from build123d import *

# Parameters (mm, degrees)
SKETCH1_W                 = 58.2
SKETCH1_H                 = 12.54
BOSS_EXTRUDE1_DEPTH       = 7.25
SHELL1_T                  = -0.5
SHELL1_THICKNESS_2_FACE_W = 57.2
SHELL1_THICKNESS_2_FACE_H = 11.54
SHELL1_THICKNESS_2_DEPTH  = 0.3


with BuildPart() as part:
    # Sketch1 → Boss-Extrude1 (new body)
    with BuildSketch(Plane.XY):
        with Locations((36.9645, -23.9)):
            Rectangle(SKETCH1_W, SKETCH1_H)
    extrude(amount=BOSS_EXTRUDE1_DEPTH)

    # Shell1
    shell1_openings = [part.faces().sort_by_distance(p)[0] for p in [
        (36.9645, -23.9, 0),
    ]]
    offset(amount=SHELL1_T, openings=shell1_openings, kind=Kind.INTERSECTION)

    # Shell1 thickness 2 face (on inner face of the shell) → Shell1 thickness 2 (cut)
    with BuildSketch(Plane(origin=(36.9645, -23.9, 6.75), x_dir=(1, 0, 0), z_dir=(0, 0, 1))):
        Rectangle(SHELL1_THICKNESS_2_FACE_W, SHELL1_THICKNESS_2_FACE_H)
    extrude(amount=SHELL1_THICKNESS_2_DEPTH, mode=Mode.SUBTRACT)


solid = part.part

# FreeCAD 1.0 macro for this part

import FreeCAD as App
import Part
import Sketcher
Q = App.Units.Quantity


def faces_at(feature, points):
    """Names of the faces that lie closest to the given points."""
    faces = feature.Shape.Faces
    near = lambda p: min(range(len(faces)), key=lambda i: faces[i].distToShape(Part.Vertex(*p))[0])
    return sorted({f"Face{near(p) + 1}" for p in points})

doc = App.newDocument("Part")
params = doc.addObject("Spreadsheet::Sheet", "Params")
for row, (alias, value) in enumerate([
    ("sketch1_width", "58.2 mm"),
    ("sketch1_height", "12.54 mm"),
    ("pad1_length", "7.25 mm"),
    ("thickness_wall", "0.5 mm"),
    ("sketch2_width", "57.2 mm"),
    ("sketch2_height", "11.54 mm"),
    ("pocket1_length", "0.3 mm"),
], start=1):
    params.set(f"A{row}", alias)
    params.set(f"B{row}", "=" + value)
    params.setAlias(f"B{row}", alias)

body = doc.addObject("PartDesign::Body", "Body")

sketch1 = body.newObject("Sketcher::SketchObject", "Sketch")
sketch1.AttachmentSupport = (doc.getObject("XY_Plane"), [""])
sketch1.MapMode = "FlatFace"
sketch1.addGeometry(Part.LineSegment(App.Vector(8, -18, 0), App.Vector(8, -30, 0)), False)
sketch1.addGeometry(Part.LineSegment(App.Vector(8, -30, 0), App.Vector(66, -30, 0)), False)
sketch1.addGeometry(Part.LineSegment(App.Vector(66, -30, 0), App.Vector(66, -18, 0)), False)
sketch1.addGeometry(Part.LineSegment(App.Vector(66, -18, 0), App.Vector(8, -18, 0)), False)
sketch1.addConstraint(Sketcher.Constraint("Coincident", 0, 2, 1, 1))
sketch1.addConstraint(Sketcher.Constraint("Coincident", 1, 2, 2, 1))
sketch1.addConstraint(Sketcher.Constraint("Coincident", 2, 2, 3, 1))
sketch1.addConstraint(Sketcher.Constraint("Coincident", 3, 2, 0, 1))
sketch1.addConstraint(Sketcher.Constraint("Vertical", 0))
sketch1.addConstraint(Sketcher.Constraint("Horizontal", 1))
sketch1.addConstraint(Sketcher.Constraint("Vertical", 2))
sketch1.addConstraint(Sketcher.Constraint("Horizontal", 3))
sketch1.addConstraint(Sketcher.Constraint("DistanceX", 1, 1, 1, 2, Q("58.2 mm")))
sketch1.addConstraint(Sketcher.Constraint("DistanceY", 0, 2, 0, 1, Q("12.54 mm")))
sketch1.addConstraint(Sketcher.Constraint("DistanceY", 0, 2, -1, 1, Q("30.17 mm")))
sketch1.addConstraint(Sketcher.Constraint("DistanceX", -1, 1, 0, 2, Q("7.8645 mm")))
sketch1.setExpression("Constraints[8]", "Params.sketch1_width")
sketch1.setExpression("Constraints[9]", "Params.sketch1_height")
pad1 = body.newObject("PartDesign::Pad", "Pad")
pad1.Profile = sketch1
pad1.setExpression("Length", "Params.pad1_length")
doc.recompute()

thickness = body.newObject("PartDesign::Thickness", "Thickness")
thickness.Base = (pad1, faces_at(pad1, [(36.965, -23.9, 0)]))
thickness.setExpression("Value", "Params.thickness_wall")
thickness.Reversed = True
thickness.Join = "Intersection"

sketch2 = body.newObject("Sketcher::SketchObject", "Sketch001")
sketch2.AttachmentSupport = (doc.getObject("XY_Plane"), [""])
sketch2.MapMode = "FlatFace"
sketch2.AttachmentOffset = App.Placement(App.Vector(0, 0, 6.75), App.Rotation())
sketch2.addGeometry(Part.LineSegment(App.Vector(8, -18, 0), App.Vector(8, -30, 0)), False)
sketch2.addGeometry(Part.LineSegment(App.Vector(8, -30, 0), App.Vector(66, -30, 0)), False)
sketch2.addGeometry(Part.LineSegment(App.Vector(66, -30, 0), App.Vector(66, -18, 0)), False)
sketch2.addGeometry(Part.LineSegment(App.Vector(66, -18, 0), App.Vector(8, -18, 0)), False)
sketch2.addConstraint(Sketcher.Constraint("Coincident", 0, 2, 1, 1))
sketch2.addConstraint(Sketcher.Constraint("Coincident", 1, 2, 2, 1))
sketch2.addConstraint(Sketcher.Constraint("Coincident", 2, 2, 3, 1))
sketch2.addConstraint(Sketcher.Constraint("Coincident", 3, 2, 0, 1))
sketch2.addConstraint(Sketcher.Constraint("Vertical", 0))
sketch2.addConstraint(Sketcher.Constraint("Horizontal", 1))
sketch2.addConstraint(Sketcher.Constraint("Vertical", 2))
sketch2.addConstraint(Sketcher.Constraint("Horizontal", 3))
sketch2.addConstraint(Sketcher.Constraint("DistanceX", 1, 1, 1, 2, Q("57.2 mm")))
sketch2.addConstraint(Sketcher.Constraint("DistanceY", 0, 2, 0, 1, Q("11.54 mm")))
sketch2.addConstraint(Sketcher.Constraint("DistanceY", 0, 2, -1, 1, Q("29.67 mm")))
sketch2.addConstraint(Sketcher.Constraint("DistanceX", -1, 1, 0, 2, Q("8.3645 mm")))
sketch2.setExpression("Constraints[8]", "Params.sketch2_width")
sketch2.setExpression("Constraints[9]", "Params.sketch2_height")
pocket1 = body.newObject("PartDesign::Pocket", "Pocket")
pocket1.Profile = sketch2
pocket1.setExpression("Length", "Params.pocket1_length")
pocket1.Reversed = True

doc.recompute()
